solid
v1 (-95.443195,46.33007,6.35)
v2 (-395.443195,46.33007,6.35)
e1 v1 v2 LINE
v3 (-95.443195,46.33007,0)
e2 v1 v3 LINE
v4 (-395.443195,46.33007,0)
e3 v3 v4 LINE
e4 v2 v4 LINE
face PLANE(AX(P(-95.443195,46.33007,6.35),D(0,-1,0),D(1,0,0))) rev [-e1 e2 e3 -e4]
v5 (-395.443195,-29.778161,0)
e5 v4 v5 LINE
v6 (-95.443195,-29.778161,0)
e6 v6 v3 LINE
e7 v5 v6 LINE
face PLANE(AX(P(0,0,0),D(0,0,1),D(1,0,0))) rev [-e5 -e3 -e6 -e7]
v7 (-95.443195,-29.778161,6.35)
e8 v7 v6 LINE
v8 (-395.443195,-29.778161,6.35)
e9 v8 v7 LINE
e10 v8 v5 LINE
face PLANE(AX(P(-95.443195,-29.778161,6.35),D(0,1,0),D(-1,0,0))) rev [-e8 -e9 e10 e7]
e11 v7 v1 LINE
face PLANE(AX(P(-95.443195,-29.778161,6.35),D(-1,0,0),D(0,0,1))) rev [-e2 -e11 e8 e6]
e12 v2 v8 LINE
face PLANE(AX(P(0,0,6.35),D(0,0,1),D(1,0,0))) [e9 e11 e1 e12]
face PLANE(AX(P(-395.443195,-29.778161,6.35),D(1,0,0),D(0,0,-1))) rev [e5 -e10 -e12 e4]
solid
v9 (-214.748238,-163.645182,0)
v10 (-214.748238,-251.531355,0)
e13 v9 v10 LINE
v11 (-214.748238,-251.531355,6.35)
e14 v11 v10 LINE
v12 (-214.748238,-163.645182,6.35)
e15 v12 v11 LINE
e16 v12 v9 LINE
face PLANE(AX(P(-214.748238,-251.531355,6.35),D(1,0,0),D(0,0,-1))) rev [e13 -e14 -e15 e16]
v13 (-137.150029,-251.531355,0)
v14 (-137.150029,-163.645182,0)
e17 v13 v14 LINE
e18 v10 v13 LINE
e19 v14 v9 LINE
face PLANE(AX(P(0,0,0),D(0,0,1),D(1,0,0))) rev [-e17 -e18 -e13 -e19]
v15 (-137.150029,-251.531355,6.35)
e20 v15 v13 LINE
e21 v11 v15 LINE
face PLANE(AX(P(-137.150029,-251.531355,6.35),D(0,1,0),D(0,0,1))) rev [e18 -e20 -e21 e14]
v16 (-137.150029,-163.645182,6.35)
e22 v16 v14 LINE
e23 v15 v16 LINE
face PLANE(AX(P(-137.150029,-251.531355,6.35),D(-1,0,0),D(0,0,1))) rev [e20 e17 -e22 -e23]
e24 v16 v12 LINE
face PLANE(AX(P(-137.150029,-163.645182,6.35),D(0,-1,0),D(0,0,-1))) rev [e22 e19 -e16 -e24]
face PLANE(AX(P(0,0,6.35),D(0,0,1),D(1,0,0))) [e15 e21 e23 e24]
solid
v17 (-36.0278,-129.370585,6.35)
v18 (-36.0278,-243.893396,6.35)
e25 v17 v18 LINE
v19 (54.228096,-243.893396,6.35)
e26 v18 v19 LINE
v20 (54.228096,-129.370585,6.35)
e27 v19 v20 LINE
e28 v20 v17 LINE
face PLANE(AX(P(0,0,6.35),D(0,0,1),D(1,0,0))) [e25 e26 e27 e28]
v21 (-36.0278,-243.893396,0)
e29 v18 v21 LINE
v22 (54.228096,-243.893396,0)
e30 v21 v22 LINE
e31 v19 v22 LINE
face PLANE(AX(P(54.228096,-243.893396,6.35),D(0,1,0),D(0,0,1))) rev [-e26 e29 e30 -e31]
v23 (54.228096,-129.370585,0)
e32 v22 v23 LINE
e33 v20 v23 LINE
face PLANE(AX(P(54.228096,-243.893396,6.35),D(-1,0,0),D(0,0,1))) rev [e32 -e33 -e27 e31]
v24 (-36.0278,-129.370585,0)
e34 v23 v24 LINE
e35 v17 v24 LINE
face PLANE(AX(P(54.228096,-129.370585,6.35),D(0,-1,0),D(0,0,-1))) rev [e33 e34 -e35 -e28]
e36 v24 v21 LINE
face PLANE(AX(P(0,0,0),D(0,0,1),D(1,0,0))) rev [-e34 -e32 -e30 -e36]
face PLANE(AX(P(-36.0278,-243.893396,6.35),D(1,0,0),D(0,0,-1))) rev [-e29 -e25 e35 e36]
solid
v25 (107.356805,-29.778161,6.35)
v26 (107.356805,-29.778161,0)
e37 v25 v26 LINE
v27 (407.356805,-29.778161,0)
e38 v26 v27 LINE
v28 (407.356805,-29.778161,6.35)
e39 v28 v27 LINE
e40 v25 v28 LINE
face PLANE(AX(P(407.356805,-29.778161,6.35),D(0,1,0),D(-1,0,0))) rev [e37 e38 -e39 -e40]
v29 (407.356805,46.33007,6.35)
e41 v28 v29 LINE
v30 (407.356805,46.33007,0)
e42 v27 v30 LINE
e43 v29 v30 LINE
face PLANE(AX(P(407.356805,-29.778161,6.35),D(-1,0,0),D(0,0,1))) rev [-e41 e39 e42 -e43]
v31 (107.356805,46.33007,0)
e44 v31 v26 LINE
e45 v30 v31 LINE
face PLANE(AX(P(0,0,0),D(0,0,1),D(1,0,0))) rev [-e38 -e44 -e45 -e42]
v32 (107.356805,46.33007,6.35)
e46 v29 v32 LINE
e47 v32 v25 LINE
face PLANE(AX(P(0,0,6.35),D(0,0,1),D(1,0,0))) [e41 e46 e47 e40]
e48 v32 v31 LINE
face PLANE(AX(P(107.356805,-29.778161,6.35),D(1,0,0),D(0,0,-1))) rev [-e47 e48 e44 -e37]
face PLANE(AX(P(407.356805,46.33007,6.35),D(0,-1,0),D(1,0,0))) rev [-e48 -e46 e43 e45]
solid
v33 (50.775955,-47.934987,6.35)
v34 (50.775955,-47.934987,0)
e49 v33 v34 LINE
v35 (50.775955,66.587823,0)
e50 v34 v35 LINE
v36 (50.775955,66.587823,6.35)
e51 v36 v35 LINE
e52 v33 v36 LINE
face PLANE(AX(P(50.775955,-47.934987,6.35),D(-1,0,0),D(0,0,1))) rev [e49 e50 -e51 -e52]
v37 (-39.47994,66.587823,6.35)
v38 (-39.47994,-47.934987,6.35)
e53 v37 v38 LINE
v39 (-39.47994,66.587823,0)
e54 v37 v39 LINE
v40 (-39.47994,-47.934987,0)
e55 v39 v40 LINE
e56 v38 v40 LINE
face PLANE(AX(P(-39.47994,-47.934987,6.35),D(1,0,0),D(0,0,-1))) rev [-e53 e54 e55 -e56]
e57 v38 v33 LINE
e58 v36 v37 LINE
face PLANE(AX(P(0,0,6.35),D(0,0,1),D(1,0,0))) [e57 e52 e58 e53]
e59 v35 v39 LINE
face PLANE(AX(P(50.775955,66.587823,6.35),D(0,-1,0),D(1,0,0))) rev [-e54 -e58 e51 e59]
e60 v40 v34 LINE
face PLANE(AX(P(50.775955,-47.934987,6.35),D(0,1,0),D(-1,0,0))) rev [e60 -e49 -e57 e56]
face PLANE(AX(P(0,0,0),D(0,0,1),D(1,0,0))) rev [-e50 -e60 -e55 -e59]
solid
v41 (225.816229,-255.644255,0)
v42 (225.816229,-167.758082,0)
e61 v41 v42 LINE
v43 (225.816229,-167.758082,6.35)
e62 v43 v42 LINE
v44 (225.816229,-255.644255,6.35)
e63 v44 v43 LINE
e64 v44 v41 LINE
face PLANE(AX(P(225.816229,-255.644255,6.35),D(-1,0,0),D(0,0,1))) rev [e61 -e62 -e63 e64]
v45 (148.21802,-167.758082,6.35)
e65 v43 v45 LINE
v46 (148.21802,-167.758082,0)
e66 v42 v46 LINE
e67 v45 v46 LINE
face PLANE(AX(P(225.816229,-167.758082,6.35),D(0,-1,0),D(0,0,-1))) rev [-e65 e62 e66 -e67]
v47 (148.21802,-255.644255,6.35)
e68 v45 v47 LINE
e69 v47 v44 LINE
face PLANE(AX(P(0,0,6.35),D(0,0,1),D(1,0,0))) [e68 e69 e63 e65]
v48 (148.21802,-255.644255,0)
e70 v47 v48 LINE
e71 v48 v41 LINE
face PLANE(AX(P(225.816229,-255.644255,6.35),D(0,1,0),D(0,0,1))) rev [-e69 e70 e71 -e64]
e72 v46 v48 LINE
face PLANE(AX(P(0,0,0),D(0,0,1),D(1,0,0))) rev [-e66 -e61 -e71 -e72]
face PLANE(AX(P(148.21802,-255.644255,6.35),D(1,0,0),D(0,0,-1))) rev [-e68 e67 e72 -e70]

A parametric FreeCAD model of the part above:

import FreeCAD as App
import Part
import Sketcher

V = App.Vector
Q = App.Units.Quantity

doc = App.newDocument("Part")
params = doc.addObject("Spreadsheet::Sheet", "Params")
for row, (alias, value) in enumerate([
    ("sketch1_width", "300 mm"),
    ("pad1_length", "6.35 mm"),
    ("sketch2_width", "300 mm"),
    ("pad2_length", "6.35 mm"),
    ("pad3_length", "6.35 mm"),
    ("pad4_length", "6.35 mm"),
    ("pad5_length", "6.35 mm"),
    ("pad6_length", "6.35 mm"),
], start=1):
    params.set(f"A{row}", alias)
    params.set(f"B{row}", "=" + value)
    params.setAlias(f"B{row}", alias)

body = doc.addObject("PartDesign::Body", "Body")

# Sketch on XY plane
sketch1 = body.newObject("Sketcher::SketchObject", "Sketch")
sketch1.AttachmentSupport = (doc.getObject("XY_Plane"), [""])
sketch1.MapMode = "FlatFace"
sketch1.addGeometry([
    Part.LineSegment(V(-395, 46, 0), V(-395, -30, 0)),
    Part.LineSegment(V(-395, -30, 0), V(-95, -30, 0)),
    Part.LineSegment(V(-95, -30, 0), V(-95, 46, 0)),
    Part.LineSegment(V(-95, 46, 0), V(-395, 46, 0)),
], False)
sketch1.addConstraint([
    Sketcher.Constraint("Coincident", 0, 2, 1, 1),
    Sketcher.Constraint("Coincident", 1, 2, 2, 1),
    Sketcher.Constraint("Coincident", 2, 2, 3, 1),
    Sketcher.Constraint("Coincident", 3, 2, 0, 1),
    Sketcher.Constraint("Vertical", 0),
    Sketcher.Constraint("Horizontal", 1),
    Sketcher.Constraint("Vertical", 2),
    Sketcher.Constraint("Horizontal", 3),
    Sketcher.Constraint("DistanceX", 1, 1, 1, 2, Q("300 mm")),
    Sketcher.Constraint("DistanceY", 0, 2, 0, 1, Q("76.10823 mm")),
    Sketcher.Constraint("DistanceY", 0, 2, -1, 1, Q("29.778161 mm")),
    Sketcher.Constraint("DistanceX", 0, 2, -1, 1, Q("395.443195 mm")),
])
sketch1.setExpression("Constraints[8]", "Params.sketch1_width")
pad1 = body.newObject("PartDesign::Pad", "Pad")
pad1.Profile = sketch1
pad1.setExpression("Length", "Params.pad1_length")
body2 = doc.addObject("PartDesign::Body", "Body001")

# Sketch on XY plane
sketch2 = body2.newObject("Sketcher::SketchObject", "Sketch001")
sketch2.AttachmentSupport = (doc.getObject("XY_Plane001"), [""])
sketch2.MapMode = "FlatFace"
sketch2.addGeometry([
    Part.LineSegment(V(107, 46, 0), V(107, -30, 0)),
    Part.LineSegment(V(107, -30, 0), V(407, -30, 0)),
    Part.LineSegment(V(407, -30, 0), V(407, 46, 0)),
    Part.LineSegment(V(407, 46, 0), V(107, 46, 0)),
], False)
sketch2.addConstraint([
    Sketcher.Constraint("Coincident", 0, 2, 1, 1),
    Sketcher.Constraint("Coincident", 1, 2, 2, 1),
    Sketcher.Constraint("Coincident", 2, 2, 3, 1),
    Sketcher.Constraint("Coincident", 3, 2, 0, 1),
    Sketcher.Constraint("Vertical", 0),
    Sketcher.Constraint("Horizontal", 1),
    Sketcher.Constraint("Vertical", 2),
    Sketcher.Constraint("Horizontal", 3),
    Sketcher.Constraint("DistanceX", 1, 1, 1, 2, Q("300 mm")),
    Sketcher.Constraint("DistanceY", 0, 2, 0, 1, Q("76.10823 mm")),
    Sketcher.Constraint("DistanceY", 0, 2, -1, 1, Q("29.778161 mm")),
    Sketcher.Constraint("DistanceX", -1, 1, 0, 2, Q("107.356805 mm")),
])
sketch2.setExpression("Constraints[8]", "Params.sketch2_width")
pad2 = body2.newObject("PartDesign::Pad", "Pad001")
pad2.Profile = sketch2
pad2.setExpression("Length", "Params.pad2_length")
body3 = doc.addObject("PartDesign::Body", "Body002")

# Sketch on XY plane
sketch3 = body3.newObject("Sketcher::SketchObject", "Sketch002")
sketch3.AttachmentSupport = (doc.getObject("XY_Plane002"), [""])
sketch3.MapMode = "FlatFace"
sketch3.addGeometry([
    Part.LineSegment(V(-36, -129, 0), V(-36, -244, 0)),
    Part.LineSegment(V(-36, -244, 0), V(54, -244, 0)),
    Part.LineSegment(V(54, -244, 0), V(54, -129, 0)),
    Part.LineSegment(V(54, -129, 0), V(-36, -129, 0)),
], False)
sketch3.addConstraint([
    Sketcher.Constraint("Coincident", 0, 2, 1, 1),
    Sketcher.Constraint("Coincident", 1, 2, 2, 1),
    Sketcher.Constraint("Coincident", 2, 2, 3, 1),
    Sketcher.Constraint("Coincident", 3, 2, 0, 1),
    Sketcher.Constraint("Vertical", 0),
    Sketcher.Constraint("Horizontal", 1),
    Sketcher.Constraint("Vertical", 2),
    Sketcher.Constraint("Horizontal", 3),
    Sketcher.Constraint("DistanceY", 0, 2, 0, 1, Q("114.522811 mm")),
    Sketcher.Constraint("DistanceX", 0, 2, -1, 1, Q("36.0278 mm")),
    Sketcher.Constraint("DistanceX", 1, 1, 1, 2, Q("90.255895 mm")),
    Sketcher.Constraint("DistanceY", 0, 2, -1, 1, Q("243.893396 mm")),
])
pad3 = body3.newObject("PartDesign::Pad", "Pad002")
pad3.Profile = sketch3
pad3.setExpression("Length", "Params.pad3_length")
body4 = doc.addObject("PartDesign::Body", "Body003")

# Sketch on XY plane
sketch4 = body4.newObject("Sketcher::SketchObject", "Sketch003")
sketch4.AttachmentSupport = (doc.getObject("XY_Plane003"), [""])
sketch4.MapMode = "FlatFace"
sketch4.addGeometry([
    Part.LineSegment(V(-39, 67, 0), V(-39, -48, 0)),
    Part.LineSegment(V(-39, -48, 0), V(51, -48, 0)),
    Part.LineSegment(V(51, -48, 0), V(51, 67, 0)),
    Part.LineSegment(V(51, 67, 0), V(-39, 67, 0)),
], False)
sketch4.addConstraint([
    Sketcher.Constraint("Coincident", 0, 2, 1, 1),
    Sketcher.Constraint("Coincident", 1, 2, 2, 1),
    Sketcher.Constraint("Coincident", 2, 2, 3, 1),
    Sketcher.Constraint("Coincident", 3, 2, 0, 1),
    Sketcher.Constraint("Vertical", 0),
    Sketcher.Constraint("Horizontal", 1),
    Sketcher.Constraint("Vertical", 2),
    Sketcher.Constraint("Horizontal", 3),
    Sketcher.Constraint("DistanceY", 0, 2, 0, 1, Q("114.522811 mm")),
    Sketcher.Constraint("DistanceX", 1, 1, 1, 2, Q("90.255895 mm")),
    Sketcher.Constraint("DistanceX", 0, 2, -1, 1, Q("39.47994 mm")),
    Sketcher.Constraint("DistanceY", 0, 2, -1, 1, Q("47.934987 mm")),
])
pad4 = body4.newObject("PartDesign::Pad", "Pad003")
pad4.Profile = sketch4
pad4.setExpression("Length", "Params.pad4_length")
body5 = doc.addObject("PartDesign::Body", "Body004")

# Sketch on XY plane
sketch5 = body5.newObject("Sketcher::SketchObject", "Sketch004")
sketch5.AttachmentSupport = (doc.getObject("XY_Plane004"), [""])
sketch5.MapMode = "FlatFace"
sketch5.addGeometry([
    Part.LineSegment(V(-215, -164, 0), V(-215, -252, 0)),
    Part.LineSegment(V(-215, -252, 0), V(-137, -252, 0)),
    Part.LineSegment(V(-137, -252, 0), V(-137, -164, 0)),
    Part.LineSegment(V(-137, -164, 0), V(-215, -164, 0)),
], False)
sketch5.addConstraint([
    Sketcher.Constraint("Coincident", 0, 2, 1, 1),
    Sketcher.Constraint("Coincident", 1, 2, 2, 1),
    Sketcher.Constraint("Coincident", 2, 2, 3, 1),
    Sketcher.Constraint("Coincident", 3, 2, 0, 1),
    Sketcher.Constraint("Vertical", 0),
    Sketcher.Constraint("Horizontal", 1),
    Sketcher.Constraint("Vertical", 2),
    Sketcher.Constraint("Horizontal", 3),
    Sketcher.Constraint("DistanceX", 1, 1, 1, 2, Q("77.598209 mm")),
    Sketcher.Constraint("DistanceY", 0, 2, 0, 1, Q("87.886173 mm")),
    Sketcher.Constraint("DistanceX", 1, 2, -1, 1, Q("137.150029 mm")),
    Sketcher.Constraint("DistanceY", 2, 2, -1, 1, Q("163.645182 mm")),
])
pad5 = body5.newObject("PartDesign::Pad", "Pad004")
pad5.Profile = sketch5
pad5.setExpression("Length", "Params.pad5_length")
body6 = doc.addObject("PartDesign::Body", "Body005")

# Sketch on XY plane
sketch6 = body6.newObject("Sketcher::SketchObject", "Sketch005")
sketch6.AttachmentSupport = (doc.getObject("XY_Plane005"), [""])
sketch6.MapMode = "FlatFace"
sketch6.addGeometry([
    Part.LineSegment(V(148, -168, 0), V(148, -256, 0)),
    Part.LineSegment(V(148, -256, 0), V(226, -256, 0)),
    Part.LineSegment(V(226, -256, 0), V(226, -168, 0)),
    Part.LineSegment(V(226, -168, 0), V(148, -168, 0)),
], False)
sketch6.addConstraint([
    Sketcher.Constraint("Coincident", 0, 2, 1, 1),
    Sketcher.Constraint("Coincident", 1, 2, 2, 1),
    Sketcher.Constraint("Coincident", 2, 2, 3, 1),
    Sketcher.Constraint("Coincident", 3, 2, 0, 1),
    Sketcher.Constraint("Vertical", 0),
    Sketcher.Constraint("Horizontal", 1),
    Sketcher.Constraint("Vertical", 2),
    Sketcher.Constraint("Horizontal", 3),
    Sketcher.Constraint("DistanceX", 1, 1, 1, 2, Q("77.598209 mm")),
    Sketcher.Constraint("DistanceY", 0, 2, 0, 1, Q("87.886173 mm")),
    Sketcher.Constraint("DistanceX", -1, 1, 0, 2, Q("148.21802 mm")),
    Sketcher.Constraint("DistanceY", 2, 2, -1, 1, Q("167.758082 mm")),
])
pad6 = body6.newObject("PartDesign::Pad", "Pad005")
pad6.Profile = sketch6
pad6.setExpression("Length", "Params.pad6_length")

doc.recompute()
